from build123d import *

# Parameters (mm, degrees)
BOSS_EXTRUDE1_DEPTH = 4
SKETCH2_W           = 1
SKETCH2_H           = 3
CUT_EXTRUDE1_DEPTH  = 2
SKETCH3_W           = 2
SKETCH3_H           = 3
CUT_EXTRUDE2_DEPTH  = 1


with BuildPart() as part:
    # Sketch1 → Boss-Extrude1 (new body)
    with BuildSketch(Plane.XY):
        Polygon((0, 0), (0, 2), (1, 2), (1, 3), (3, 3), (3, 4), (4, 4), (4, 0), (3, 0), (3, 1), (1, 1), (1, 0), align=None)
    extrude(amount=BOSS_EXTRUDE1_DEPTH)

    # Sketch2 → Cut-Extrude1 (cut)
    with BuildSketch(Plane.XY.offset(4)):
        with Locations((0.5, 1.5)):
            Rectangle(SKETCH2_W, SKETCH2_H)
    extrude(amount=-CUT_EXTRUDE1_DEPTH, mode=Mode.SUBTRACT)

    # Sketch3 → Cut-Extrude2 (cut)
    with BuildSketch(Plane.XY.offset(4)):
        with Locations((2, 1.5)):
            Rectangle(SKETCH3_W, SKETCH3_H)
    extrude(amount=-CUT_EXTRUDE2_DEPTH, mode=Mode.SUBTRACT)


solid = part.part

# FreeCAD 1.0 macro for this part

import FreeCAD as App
import Part
import Sketcher
from FreeCAD import Vector

doc = App.newDocument("Part")
body = doc.addObject("PartDesign::Body", "Body")

# Sketch on XY plane
sketch1 = doc.addObject("Sketcher::SketchObject", "Sketch")
body.addObject(sketch1)
sketch1.AttachmentSupport = (doc.XY_Plane, [""])
sketch1.MapMode = "FlatFace"
sketch1.addGeometry(Part.LineSegment(Vector(0, 2, 0), Vector(0, 0, 0)), False)
sketch1.addGeometry(Part.LineSegment(Vector(0, 0, 0), Vector(1, 0, 0)), False)
sketch1.addGeometry(Part.LineSegment(Vector(1, 0, 0), Vector(1, 1, 0)), False)
sketch1.addGeometry(Part.LineSegment(Vector(1, 1, 0), Vector(3, 1, 0)), False)
sketch1.addGeometry(Part.LineSegment(Vector(3, 1, 0), Vector(3, 0, 0)), False)
sketch1.addGeometry(Part.LineSegment(Vector(3, 0, 0), Vector(4, 0, 0)), False)
sketch1.addGeometry(Part.LineSegment(Vector(4, 0, 0), Vector(4, 4, 0)), False)
sketch1.addGeometry(Part.LineSegment(Vector(4, 4, 0), Vector(3, 4, 0)), False)
sketch1.addGeometry(Part.LineSegment(Vector(3, 4, 0), Vector(3, 3, 0)), False)
sketch1.addGeometry(Part.LineSegment(Vector(3, 3, 0), Vector(1, 3, 0)), False)
sketch1.addGeometry(Part.LineSegment(Vector(1, 3, 0), Vector(1, 2, 0)), False)
sketch1.addGeometry(Part.LineSegment(Vector(1, 2, 0), Vector(0, 2, 0)), False)
sketch1.addConstraint(Sketcher.Constraint("Coincident", 0, 2, 1, 1))
sketch1.addConstraint(Sketcher.Constraint("Coincident", 1, 2, 2, 1))
sketch1.addConstraint(Sketcher.Constraint("Coincident", 2, 2, 3, 1))
sketch1.addConstraint(Sketcher.Constraint("Coincident", 3, 2, 4, 1))
sketch1.addConstraint(Sketcher.Constraint("Coincident", 4, 2, 5, 1))
sketch1.addConstraint(Sketcher.Constraint("Coincident", 5, 2, 6, 1))
sketch1.addConstraint(Sketcher.Constraint("Coincident", 6, 2, 7, 1))
sketch1.addConstraint(Sketcher.Constraint("Coincident", 7, 2, 8, 1))
sketch1.addConstraint(Sketcher.Constraint("Coincident", 8, 2, 9, 1))
sketch1.addConstraint(Sketcher.Constraint("Coincident", 9, 2, 10, 1))
sketch1.addConstraint(Sketcher.Constraint("Coincident", 10, 2, 11, 1))
sketch1.addConstraint(Sketcher.Constraint("Coincident", 11, 2, 0, 1))
sketch1.addConstraint(Sketcher.Constraint("Vertical", 0))
sketch1.addConstraint(Sketcher.Constraint("Horizontal", 1))
sketch1.addConstraint(Sketcher.Constraint("Vertical", 2))
sketch1.addConstraint(Sketcher.Constraint("Horizontal", 3))
sketch1.addConstraint(Sketcher.Constraint("Vertical", 4))
sketch1.addConstraint(Sketcher.Constraint("Horizontal", 5))
sketch1.addConstraint(Sketcher.Constraint("Vertical", 6))
sketch1.addConstraint(Sketcher.Constraint("Horizontal", 7))
sketch1.addConstraint(Sketcher.Constraint("Vertical", 8))
sketch1.addConstraint(Sketcher.Constraint("Horizontal", 9))
sketch1.addConstraint(Sketcher.Constraint("Vertical", 10))
sketch1.addConstraint(Sketcher.Constraint("Horizontal", 11))
sketch1.addConstraint(Sketcher.Constraint("Coincident", 0, 2, -1, 1))
sketch1.addConstraint(Sketcher.Constraint("PointOnObject", 4, 2, -1))
sketch1.addConstraint(Sketcher.Constraint("Vertical", 4, 2, 7, 2))
sketch1.addConstraint(Sketcher.Constraint("Vertical", 2, 2, 9, 2))
sketch1.addConstraint(Sketcher.Constraint("Equal", 1, 5))
sketch1.addConstraint(Sketcher.Constraint("Equal", 9, 0))
sketch1.addConstraint(Sketcher.Constraint("Equal", 11, 2))
sketch1.addConstraint(Sketcher.Constraint("Equal", 4, 8))
sketch1.addConstraint(Sketcher.Constraint("Equal", 8, 10))
sketch1.addConstraint(Sketcher.Constraint("DistanceX", 1, 1, 1, 2, 1.0))
sketch1.addConstraint(Sketcher.Constraint("DistanceX", 3, 1, 3, 2, 2.0))
pad1 = doc.addObject("PartDesign::Pad", "Pad")
body.addObject(pad1)
pad1.Profile = sketch1
pad1.Length = 4

# Sketch on XY plane
sketch2 = doc.addObject("Sketcher::SketchObject", "Sketch001")
body.addObject(sketch2)
sketch2.AttachmentSupport = (doc.XY_Plane, [""])
sketch2.MapMode = "FlatFace"
sketch2.AttachmentOffset = App.Placement(Vector(0, 0, 4), App.Rotation())
sketch2.addGeometry(Part.LineSegment(Vector(0, 3, 0), Vector(0, 0, 0)), False)
sketch2.addGeometry(Part.LineSegment(Vector(0, 0, 0), Vector(1, 0, 0)), False)
sketch2.addGeometry(Part.LineSegment(Vector(1, 0, 0), Vector(1, 3, 0)), False)
sketch2.addGeometry(Part.LineSegment(Vector(1, 3, 0), Vector(0, 3, 0)), False)
sketch2.addConstraint(Sketcher.Constraint("Coincident", 0, 2, 1, 1))
sketch2.addConstraint(Sketcher.Constraint("Coincident", 1, 2, 2, 1))
sketch2.addConstraint(Sketcher.Constraint("Coincident", 2, 2, 3, 1))
sketch2.addConstraint(Sketcher.Constraint("Coincident", 3, 2, 0, 1))
sketch2.addConstraint(Sketcher.Constraint("Vertical", 0))
sketch2.addConstraint(Sketcher.Constraint("Horizontal", 1))
sketch2.addConstraint(Sketcher.Constraint("Vertical", 2))
sketch2.addConstraint(Sketcher.Constraint("Horizontal", 3))
sketch2.addConstraint(Sketcher.Constraint("Coincident", 0, 2, -1, 1))
sketch2.addConstraint(Sketcher.Constraint("DistanceX", 1, 1, 1, 2, 1.0))
sketch2.addConstraint(Sketcher.Constraint("DistanceY", 0, 2, 0, 1, 3.0))
pocket1 = doc.addObject("PartDesign::Pocket", "Pocket")
body.addObject(pocket1)
pocket1.Profile = sketch2
pocket1.Length = 2

# Sketch on XY plane
sketch3 = doc.addObject("Sketcher::SketchObject", "Sketch002")
body.addObject(sketch3)
sketch3.AttachmentSupport = (doc.XY_Plane, [""])
sketch3.MapMode = "FlatFace"
sketch3.AttachmentOffset = App.Placement(Vector(0, 0, 4), App.Rotation())
sketch3.addGeometry(Part.LineSegment(Vector(1, 3, 0), Vector(1, 0, 0)), False)
sketch3.addGeometry(Part.LineSegment(Vector(1, 0, 0), Vector(3, 0, 0)), False)
sketch3.addGeometry(Part.LineSegment(Vector(3, 0, 0), Vector(3, 3, 0)), False)
sketch3.addGeometry(Part.LineSegment(Vector(3, 3, 0), Vector(1, 3, 0)), False)
sketch3.addConstraint(Sketcher.Constraint("Coincident", 0, 2, 1, 1))
sketch3.addConstraint(Sketcher.Constraint("Coincident", 1, 2, 2, 1))
sketch3.addConstraint(Sketcher.Constraint("Coincident", 2, 2, 3, 1))
sketch3.addConstraint(Sketcher.Constraint("Coincident", 3, 2, 0, 1))
sketch3.addConstraint(Sketcher.Constraint("Vertical", 0))
sketch3.addConstraint(Sketcher.Constraint("Horizontal", 1))
sketch3.addConstraint(Sketcher.Constraint("Vertical", 2))
sketch3.addConstraint(Sketcher.Constraint("Horizontal", 3))
sketch3.addConstraint(Sketcher.Constraint("PointOnObject", 0, 2, -1))
sketch3.addConstraint(Sketcher.Constraint("DistanceX", 1, 1, 1, 2, 2.0))
sketch3.addConstraint(Sketcher.Constraint("DistanceY", 0, 2, 0, 1, 3.0))
sketch3.addConstraint(Sketcher.Constraint("DistanceX", -1, 1, 0, 2, 1.0))
pocket2 = doc.addObject("PartDesign::Pocket", "Pocket001")
body.addObject(pocket2)
pocket2.Profile = sketch3
pocket2.Length = 1

doc.recompute()
